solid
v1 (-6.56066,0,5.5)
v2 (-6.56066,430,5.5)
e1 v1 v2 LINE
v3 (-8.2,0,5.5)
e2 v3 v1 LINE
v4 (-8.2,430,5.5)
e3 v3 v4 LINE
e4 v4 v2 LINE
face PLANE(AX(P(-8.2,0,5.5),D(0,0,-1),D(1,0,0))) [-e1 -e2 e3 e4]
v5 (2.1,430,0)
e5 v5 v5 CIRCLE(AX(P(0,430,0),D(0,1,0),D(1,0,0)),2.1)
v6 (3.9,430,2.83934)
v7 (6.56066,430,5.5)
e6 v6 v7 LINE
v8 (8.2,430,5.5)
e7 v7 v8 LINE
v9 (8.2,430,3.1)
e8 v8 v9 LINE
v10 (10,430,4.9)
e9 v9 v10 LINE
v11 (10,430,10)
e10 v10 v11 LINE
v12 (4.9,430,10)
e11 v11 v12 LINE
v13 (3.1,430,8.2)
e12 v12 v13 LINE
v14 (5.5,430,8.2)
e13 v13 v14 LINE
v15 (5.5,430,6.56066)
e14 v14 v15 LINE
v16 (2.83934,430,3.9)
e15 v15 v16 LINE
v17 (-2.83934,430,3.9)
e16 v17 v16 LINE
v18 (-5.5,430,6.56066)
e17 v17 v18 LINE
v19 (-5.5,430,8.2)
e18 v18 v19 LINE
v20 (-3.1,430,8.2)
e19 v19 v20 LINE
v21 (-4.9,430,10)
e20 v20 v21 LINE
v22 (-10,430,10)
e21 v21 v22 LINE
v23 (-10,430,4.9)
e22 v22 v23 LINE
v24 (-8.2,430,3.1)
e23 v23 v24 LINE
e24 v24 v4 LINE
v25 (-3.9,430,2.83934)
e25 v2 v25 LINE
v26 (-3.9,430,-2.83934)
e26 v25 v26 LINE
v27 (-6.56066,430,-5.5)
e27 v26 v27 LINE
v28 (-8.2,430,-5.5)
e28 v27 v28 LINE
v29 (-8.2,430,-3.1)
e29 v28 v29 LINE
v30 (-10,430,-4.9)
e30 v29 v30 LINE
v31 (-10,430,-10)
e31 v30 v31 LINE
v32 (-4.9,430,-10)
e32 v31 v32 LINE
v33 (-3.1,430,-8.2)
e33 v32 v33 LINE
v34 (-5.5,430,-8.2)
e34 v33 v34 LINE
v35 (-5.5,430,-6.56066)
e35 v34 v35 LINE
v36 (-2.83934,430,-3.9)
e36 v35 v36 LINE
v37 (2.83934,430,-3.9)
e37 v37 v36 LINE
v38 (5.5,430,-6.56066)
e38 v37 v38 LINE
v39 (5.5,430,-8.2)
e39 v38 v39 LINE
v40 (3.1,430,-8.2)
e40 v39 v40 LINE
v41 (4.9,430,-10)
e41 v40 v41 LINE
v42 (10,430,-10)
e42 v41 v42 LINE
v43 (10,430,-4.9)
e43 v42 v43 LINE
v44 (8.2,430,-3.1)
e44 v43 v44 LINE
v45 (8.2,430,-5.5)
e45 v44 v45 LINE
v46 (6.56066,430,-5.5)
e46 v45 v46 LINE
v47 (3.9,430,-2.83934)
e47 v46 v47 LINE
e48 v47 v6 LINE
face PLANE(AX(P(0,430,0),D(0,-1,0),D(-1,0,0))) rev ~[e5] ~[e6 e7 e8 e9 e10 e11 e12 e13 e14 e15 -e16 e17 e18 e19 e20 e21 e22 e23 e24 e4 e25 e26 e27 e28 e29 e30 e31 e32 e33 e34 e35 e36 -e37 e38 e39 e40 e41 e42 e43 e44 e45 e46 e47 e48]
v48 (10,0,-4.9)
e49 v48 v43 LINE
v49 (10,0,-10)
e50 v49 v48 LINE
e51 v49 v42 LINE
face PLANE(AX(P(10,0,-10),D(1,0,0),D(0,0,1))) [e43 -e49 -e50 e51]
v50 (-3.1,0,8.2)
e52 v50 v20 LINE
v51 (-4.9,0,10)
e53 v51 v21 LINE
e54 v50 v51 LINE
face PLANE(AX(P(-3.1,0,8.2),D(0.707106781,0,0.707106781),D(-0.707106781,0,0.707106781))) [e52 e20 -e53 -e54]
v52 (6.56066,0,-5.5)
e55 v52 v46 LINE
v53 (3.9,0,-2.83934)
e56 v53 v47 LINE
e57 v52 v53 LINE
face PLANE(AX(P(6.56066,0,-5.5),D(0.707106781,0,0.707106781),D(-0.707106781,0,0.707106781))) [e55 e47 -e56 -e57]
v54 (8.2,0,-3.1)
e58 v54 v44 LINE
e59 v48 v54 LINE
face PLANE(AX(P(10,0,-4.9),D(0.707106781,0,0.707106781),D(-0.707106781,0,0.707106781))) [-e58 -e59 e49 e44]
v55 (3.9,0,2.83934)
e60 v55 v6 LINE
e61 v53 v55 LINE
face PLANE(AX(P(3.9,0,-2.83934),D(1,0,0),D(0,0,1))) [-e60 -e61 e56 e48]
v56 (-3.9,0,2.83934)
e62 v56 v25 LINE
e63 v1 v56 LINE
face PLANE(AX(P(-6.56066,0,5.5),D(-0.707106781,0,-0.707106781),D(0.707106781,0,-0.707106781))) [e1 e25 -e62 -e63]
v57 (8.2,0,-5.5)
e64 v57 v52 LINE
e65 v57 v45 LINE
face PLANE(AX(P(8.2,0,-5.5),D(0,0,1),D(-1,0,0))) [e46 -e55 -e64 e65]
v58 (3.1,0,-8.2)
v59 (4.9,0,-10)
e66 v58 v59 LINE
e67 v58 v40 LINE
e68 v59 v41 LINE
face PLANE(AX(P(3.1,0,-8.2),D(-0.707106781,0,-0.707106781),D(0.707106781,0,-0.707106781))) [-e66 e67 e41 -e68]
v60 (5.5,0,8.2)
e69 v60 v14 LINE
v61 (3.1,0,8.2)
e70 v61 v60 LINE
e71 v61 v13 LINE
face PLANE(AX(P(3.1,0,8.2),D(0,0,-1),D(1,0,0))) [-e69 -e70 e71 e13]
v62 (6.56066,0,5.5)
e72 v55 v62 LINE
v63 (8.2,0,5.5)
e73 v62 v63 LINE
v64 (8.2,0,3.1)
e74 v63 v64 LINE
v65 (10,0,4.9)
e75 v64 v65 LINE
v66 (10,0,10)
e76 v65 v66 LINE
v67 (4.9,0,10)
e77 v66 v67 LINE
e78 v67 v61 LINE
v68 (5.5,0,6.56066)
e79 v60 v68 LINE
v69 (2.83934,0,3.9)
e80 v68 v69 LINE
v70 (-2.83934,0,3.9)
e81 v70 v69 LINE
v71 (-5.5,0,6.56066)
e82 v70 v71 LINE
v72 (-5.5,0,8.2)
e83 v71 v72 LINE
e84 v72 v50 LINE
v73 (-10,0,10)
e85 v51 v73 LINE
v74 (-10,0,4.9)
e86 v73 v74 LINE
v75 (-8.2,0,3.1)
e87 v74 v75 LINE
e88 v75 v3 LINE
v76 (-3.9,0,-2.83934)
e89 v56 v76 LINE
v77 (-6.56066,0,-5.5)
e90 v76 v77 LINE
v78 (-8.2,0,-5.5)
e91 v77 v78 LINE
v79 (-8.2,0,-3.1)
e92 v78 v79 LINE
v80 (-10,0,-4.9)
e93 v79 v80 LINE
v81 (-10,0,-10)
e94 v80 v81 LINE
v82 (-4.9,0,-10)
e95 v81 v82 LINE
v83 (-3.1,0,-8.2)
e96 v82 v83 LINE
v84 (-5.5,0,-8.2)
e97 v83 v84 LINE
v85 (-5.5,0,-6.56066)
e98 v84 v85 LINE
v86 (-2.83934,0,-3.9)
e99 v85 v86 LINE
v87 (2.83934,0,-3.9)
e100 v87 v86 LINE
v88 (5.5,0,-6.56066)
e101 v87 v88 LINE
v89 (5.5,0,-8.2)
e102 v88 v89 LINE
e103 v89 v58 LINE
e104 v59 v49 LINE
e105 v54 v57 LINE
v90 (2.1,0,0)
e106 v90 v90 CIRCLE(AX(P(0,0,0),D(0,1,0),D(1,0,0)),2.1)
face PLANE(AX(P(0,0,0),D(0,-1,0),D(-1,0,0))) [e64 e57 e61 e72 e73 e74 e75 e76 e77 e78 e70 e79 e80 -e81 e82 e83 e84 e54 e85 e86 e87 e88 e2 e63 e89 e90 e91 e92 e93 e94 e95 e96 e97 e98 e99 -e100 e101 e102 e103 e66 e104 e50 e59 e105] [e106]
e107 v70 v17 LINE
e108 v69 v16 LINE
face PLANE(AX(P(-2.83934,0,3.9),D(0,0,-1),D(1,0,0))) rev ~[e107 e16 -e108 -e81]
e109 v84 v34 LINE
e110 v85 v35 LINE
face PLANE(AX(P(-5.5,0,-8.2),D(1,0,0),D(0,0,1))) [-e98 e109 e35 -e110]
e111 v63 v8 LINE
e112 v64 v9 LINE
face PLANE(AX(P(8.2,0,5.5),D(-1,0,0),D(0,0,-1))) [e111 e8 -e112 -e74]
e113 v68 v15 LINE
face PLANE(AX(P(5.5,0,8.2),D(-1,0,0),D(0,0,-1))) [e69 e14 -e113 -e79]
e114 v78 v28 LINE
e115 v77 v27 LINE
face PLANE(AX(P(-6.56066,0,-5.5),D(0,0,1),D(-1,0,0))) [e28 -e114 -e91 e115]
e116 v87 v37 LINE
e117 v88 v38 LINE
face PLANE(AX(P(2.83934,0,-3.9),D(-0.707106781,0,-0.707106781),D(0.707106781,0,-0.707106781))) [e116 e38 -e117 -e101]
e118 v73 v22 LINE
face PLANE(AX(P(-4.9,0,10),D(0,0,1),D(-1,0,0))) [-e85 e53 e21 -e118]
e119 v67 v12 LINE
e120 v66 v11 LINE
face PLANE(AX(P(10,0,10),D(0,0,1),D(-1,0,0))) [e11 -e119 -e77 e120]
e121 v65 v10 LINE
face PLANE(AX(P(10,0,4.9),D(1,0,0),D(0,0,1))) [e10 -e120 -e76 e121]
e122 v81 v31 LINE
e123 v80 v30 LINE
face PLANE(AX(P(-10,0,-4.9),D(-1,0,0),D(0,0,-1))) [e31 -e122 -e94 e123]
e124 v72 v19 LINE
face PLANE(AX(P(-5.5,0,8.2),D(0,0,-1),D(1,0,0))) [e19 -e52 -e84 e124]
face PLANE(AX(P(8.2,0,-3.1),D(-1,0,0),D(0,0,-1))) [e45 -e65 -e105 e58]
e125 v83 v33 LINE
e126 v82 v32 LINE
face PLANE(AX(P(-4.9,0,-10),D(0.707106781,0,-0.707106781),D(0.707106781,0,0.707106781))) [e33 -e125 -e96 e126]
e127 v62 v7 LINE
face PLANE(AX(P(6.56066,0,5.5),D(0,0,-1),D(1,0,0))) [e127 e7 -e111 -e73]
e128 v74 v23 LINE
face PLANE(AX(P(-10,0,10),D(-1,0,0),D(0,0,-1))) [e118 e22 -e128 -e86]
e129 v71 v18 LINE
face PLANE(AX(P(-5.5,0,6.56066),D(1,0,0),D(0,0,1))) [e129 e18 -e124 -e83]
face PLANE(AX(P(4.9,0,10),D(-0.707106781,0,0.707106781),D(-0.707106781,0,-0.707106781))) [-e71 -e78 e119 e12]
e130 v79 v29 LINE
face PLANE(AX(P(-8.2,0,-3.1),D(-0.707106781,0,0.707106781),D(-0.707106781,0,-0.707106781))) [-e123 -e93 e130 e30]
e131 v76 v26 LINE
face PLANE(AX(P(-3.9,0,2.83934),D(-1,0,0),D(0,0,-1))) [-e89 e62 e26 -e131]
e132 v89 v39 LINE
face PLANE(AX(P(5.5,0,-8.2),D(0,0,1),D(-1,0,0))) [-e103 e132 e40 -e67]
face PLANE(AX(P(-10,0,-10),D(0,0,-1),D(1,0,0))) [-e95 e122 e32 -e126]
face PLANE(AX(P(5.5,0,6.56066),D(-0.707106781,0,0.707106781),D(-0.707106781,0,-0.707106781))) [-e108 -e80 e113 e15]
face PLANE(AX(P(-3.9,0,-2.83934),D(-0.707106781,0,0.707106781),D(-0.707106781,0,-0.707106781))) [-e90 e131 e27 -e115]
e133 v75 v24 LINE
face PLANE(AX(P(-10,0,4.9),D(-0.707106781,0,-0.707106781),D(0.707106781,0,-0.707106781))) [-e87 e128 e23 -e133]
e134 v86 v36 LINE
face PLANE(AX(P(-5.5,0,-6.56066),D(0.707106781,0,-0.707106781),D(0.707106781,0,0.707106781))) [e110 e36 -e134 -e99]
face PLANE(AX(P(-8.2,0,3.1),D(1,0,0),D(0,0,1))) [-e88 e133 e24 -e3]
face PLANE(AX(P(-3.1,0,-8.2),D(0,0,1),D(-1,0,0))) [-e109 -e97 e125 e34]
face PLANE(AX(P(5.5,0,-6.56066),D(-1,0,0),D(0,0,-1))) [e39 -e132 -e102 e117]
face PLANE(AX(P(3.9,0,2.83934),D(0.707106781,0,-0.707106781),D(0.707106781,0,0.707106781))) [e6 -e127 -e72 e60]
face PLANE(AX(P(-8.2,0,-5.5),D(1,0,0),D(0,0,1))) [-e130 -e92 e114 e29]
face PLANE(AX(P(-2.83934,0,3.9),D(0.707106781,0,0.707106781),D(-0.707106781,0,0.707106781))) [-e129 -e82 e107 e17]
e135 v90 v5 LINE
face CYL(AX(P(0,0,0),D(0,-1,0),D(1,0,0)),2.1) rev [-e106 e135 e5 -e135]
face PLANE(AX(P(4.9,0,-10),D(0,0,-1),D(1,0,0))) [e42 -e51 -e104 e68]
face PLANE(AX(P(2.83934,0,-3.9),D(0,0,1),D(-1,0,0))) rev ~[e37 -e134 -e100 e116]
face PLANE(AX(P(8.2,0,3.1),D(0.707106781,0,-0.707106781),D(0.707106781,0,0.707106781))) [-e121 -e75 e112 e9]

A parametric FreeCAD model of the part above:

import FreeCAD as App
import Part
import Sketcher
from FreeCAD import Vector
Q = App.Units.Quantity

doc = App.newDocument("Part")
body = doc.addObject("PartDesign::Body", "Body")

# Sketch on XZ plane
sketch1 = body.newObject("Sketcher::SketchObject", "Sketch")
sketch1.AttachmentSupport = (doc.getObject("XZ_Plane"), [""])
sketch1.MapMode = "FlatFace"
sketch1.addGeometry(Part.LineSegment(Vector(-4.9, -10, 0), Vector(-10, -10, 0)), False)
sketch1.addGeometry(Part.LineSegment(Vector(-10, -10, 0), Vector(-10, -4.9, 0)), False)
sketch1.addGeometry(Part.LineSegment(Vector(-10, -4.9, 0), Vector(-8.2, -3.1, 0)), False)
sketch1.addGeometry(Part.LineSegment(Vector(-8.2, -3.1, 0), Vector(-8.2, -5.5, 0)), False)
sketch1.addGeometry(Part.LineSegment(Vector(-8.2, -5.5, 0), Vector(-6.6, -5.5, 0)), False)
sketch1.addGeometry(Part.LineSegment(Vector(-6.6, -5.5, 0), Vector(-3.9, -2.8, 0)), False)
sketch1.addGeometry(Part.LineSegment(Vector(-3.9, -2.8, 0), Vector(-3.9, 2.8, 0)), False)
sketch1.addGeometry(Part.LineSegment(Vector(-3.9, 2.8, 0), Vector(-6.6, 5.5, 0)), False)
sketch1.addGeometry(Part.LineSegment(Vector(-6.6, 5.5, 0), Vector(-8.2, 5.5, 0)), False)
sketch1.addGeometry(Part.LineSegment(Vector(-8.2, 5.5, 0), Vector(-8.2, 3.1, 0)), False)
sketch1.addGeometry(Part.LineSegment(Vector(-8.2, 3.1, 0), Vector(-10, 4.9, 0)), False)
sketch1.addGeometry(Part.LineSegment(Vector(-10, 4.9, 0), Vector(-10, 10, 0)), False)
sketch1.addGeometry(Part.LineSegment(Vector(-10, 10, 0), Vector(-4.9, 10, 0)), False)
sketch1.addGeometry(Part.LineSegment(Vector(-4.9, 10, 0), Vector(-3.1, 8.2, 0)), False)
sketch1.addGeometry(Part.LineSegment(Vector(-3.1, 8.2, 0), Vector(-5.5, 8.2, 0)), False)
sketch1.addGeometry(Part.LineSegment(Vector(-5.5, 8.2, 0), Vector(-5.5, 6.6, 0)), False)
sketch1.addGeometry(Part.LineSegment(Vector(-5.5, 6.6, 0), Vector(-2.8, 3.9, 0)), False)
sketch1.addGeometry(Part.LineSegment(Vector(-2.8, 3.9, 0), Vector(2.8, 3.9, 0)), False)
sketch1.addGeometry(Part.LineSegment(Vector(2.8, 3.9, 0), Vector(5.5, 6.6, 0)), False)
sketch1.addGeometry(Part.LineSegment(Vector(5.5, 6.6, 0), Vector(5.5, 8.2, 0)), False)
sketch1.addGeometry(Part.LineSegment(Vector(5.5, 8.2, 0), Vector(3.1, 8.2, 0)), False)
sketch1.addGeometry(Part.LineSegment(Vector(3.1, 8.2, 0), Vector(4.9, 10, 0)), False)
sketch1.addGeometry(Part.LineSegment(Vector(4.9, 10, 0), Vector(10, 10, 0)), False)
sketch1.addGeometry(Part.LineSegment(Vector(10, 10, 0), Vector(10, 4.9, 0)), False)
sketch1.addGeometry(Part.LineSegment(Vector(10, 4.9, 0), Vector(8.2, 3.1, 0)), False)
sketch1.addGeometry(Part.LineSegment(Vector(8.2, 3.1, 0), Vector(8.2, 5.5, 0)), False)
sketch1.addGeometry(Part.LineSegment(Vector(8.2, 5.5, 0), Vector(6.6, 5.5, 0)), False)
sketch1.addGeometry(Part.LineSegment(Vector(6.6, 5.5, 0), Vector(3.9, 2.8, 0)), False)
sketch1.addGeometry(Part.LineSegment(Vector(3.9, 2.8, 0), Vector(3.9, -2.8, 0)), False)
sketch1.addGeometry(Part.LineSegment(Vector(3.9, -2.8, 0), Vector(6.6, -5.5, 0)), False)
sketch1.addGeometry(Part.LineSegment(Vector(6.6, -5.5, 0), Vector(8.2, -5.5, 0)), False)
sketch1.addGeometry(Part.LineSegment(Vector(8.2, -5.5, 0), Vector(8.2, -3.1, 0)), False)
sketch1.addGeometry(Part.LineSegment(Vector(8.2, -3.1, 0), Vector(10, -4.9, 0)), False)
sketch1.addGeometry(Part.LineSegment(Vector(10, -4.9, 0), Vector(10, -10, 0)), False)
sketch1.addGeometry(Part.LineSegment(Vector(10, -10, 0), Vector(4.9, -10, 0)), False)
sketch1.addGeometry(Part.LineSegment(Vector(4.9, -10, 0), Vector(3.1, -8.2, 0)), False)
sketch1.addGeometry(Part.LineSegment(Vector(3.1, -8.2, 0), Vector(5.5, -8.2, 0)), False)
sketch1.addGeometry(Part.LineSegment(Vector(5.5, -8.2, 0), Vector(5.5, -6.6, 0)), False)
sketch1.addGeometry(Part.LineSegment(Vector(5.5, -6.6, 0), Vector(2.8, -3.9, 0)), False)
sketch1.addGeometry(Part.LineSegment(Vector(2.8, -3.9, 0), Vector(-2.8, -3.9, 0)), False)
sketch1.addGeometry(Part.LineSegment(Vector(-2.8, -3.9, 0), Vector(-5.5, -6.6, 0)), False)
sketch1.addGeometry(Part.LineSegment(Vector(-5.5, -6.6, 0), Vector(-5.5, -8.2, 0)), False)
sketch1.addGeometry(Part.LineSegment(Vector(-5.5, -8.2, 0), Vector(-3.1, -8.2, 0)), False)
sketch1.addGeometry(Part.LineSegment(Vector(-3.1, -8.2, 0), Vector(-4.9, -10, 0)), False)
sketch1.addGeometry(Part.Circle(Vector(0, 0, 0), Vector(0, 0, 1), 2.1), False)
sketch1.addConstraint(Sketcher.Constraint("Coincident", 0, 2, 1, 1))
sketch1.addConstraint(Sketcher.Constraint("Coincident", 1, 2, 2, 1))
sketch1.addConstraint(Sketcher.Constraint("Coincident", 2, 2, 3, 1))
sketch1.addConstraint(Sketcher.Constraint("Coincident", 3, 2, 4, 1))
sketch1.addConstraint(Sketcher.Constraint("Coincident", 4, 2, 5, 1))
sketch1.addConstraint(Sketcher.Constraint("Coincident", 5, 2, 6, 1))
sketch1.addConstraint(Sketcher.Constraint("Coincident", 6, 2, 7, 1))
sketch1.addConstraint(Sketcher.Constraint("Coincident", 7, 2, 8, 1))
sketch1.addConstraint(Sketcher.Constraint("Coincident", 8, 2, 9, 1))
sketch1.addConstraint(Sketcher.Constraint("Coincident", 9, 2, 10, 1))
sketch1.addConstraint(Sketcher.Constraint("Coincident", 10, 2, 11, 1))
sketch1.addConstraint(Sketcher.Constraint("Coincident", 11, 2, 12, 1))
sketch1.addConstraint(Sketcher.Constraint("Coincident", 12, 2, 13, 1))
sketch1.addConstraint(Sketcher.Constraint("Coincident", 13, 2, 14, 1))
sketch1.addConstraint(Sketcher.Constraint("Coincident", 14, 2, 15, 1))
sketch1.addConstraint(Sketcher.Constraint("Coincident", 15, 2, 16, 1))
sketch1.addConstraint(Sketcher.Constraint("Coincident", 16, 2, 17, 1))
sketch1.addConstraint(Sketcher.Constraint("Coincident", 17, 2, 18, 1))
sketch1.addConstraint(Sketcher.Constraint("Coincident", 18, 2, 19, 1))
sketch1.addConstraint(Sketcher.Constraint("Coincident", 19, 2, 20, 1))
sketch1.addConstraint(Sketcher.Constraint("Coincident", 20, 2, 21, 1))
sketch1.addConstraint(Sketcher.Constraint("Coincident", 21, 2, 22, 1))
sketch1.addConstraint(Sketcher.Constraint("Coincident", 22, 2, 23, 1))
sketch1.addConstraint(Sketcher.Constraint("Coincident", 23, 2, 24, 1))
sketch1.addConstraint(Sketcher.Constraint("Coincident", 24, 2, 25, 1))
sketch1.addConstraint(Sketcher.Constraint("Coincident", 25, 2, 26, 1))
sketch1.addConstraint(Sketcher.Constraint("Coincident", 26, 2, 27, 1))
sketch1.addConstraint(Sketcher.Constraint("Coincident", 27, 2, 28, 1))
sketch1.addConstraint(Sketcher.Constraint("Coincident", 28, 2, 29, 1))
sketch1.addConstraint(Sketcher.Constraint("Coincident", 29, 2, 30, 1))
sketch1.addConstraint(Sketcher.Constraint("Coincident", 30, 2, 31, 1))
sketch1.addConstraint(Sketcher.Constraint("Coincident", 31, 2, 32, 1))
sketch1.addConstraint(Sketcher.Constraint("Coincident", 32, 2, 33, 1))
sketch1.addConstraint(Sketcher.Constraint("Coincident", 33, 2, 34, 1))
sketch1.addConstraint(Sketcher.Constraint("Coincident", 34, 2, 35, 1))
sketch1.addConstraint(Sketcher.Constraint("Coincident", 35, 2, 36, 1))
sketch1.addConstraint(Sketcher.Constraint("Coincident", 36, 2, 37, 1))
sketch1.addConstraint(Sketcher.Constraint("Coincident", 37, 2, 38, 1))
sketch1.addConstraint(Sketcher.Constraint("Coincident", 38, 2, 39, 1))
sketch1.addConstraint(Sketcher.Constraint("Coincident", 39, 2, 40, 1))
sketch1.addConstraint(Sketcher.Constraint("Coincident", 40, 2, 41, 1))
sketch1.addConstraint(Sketcher.Constraint("Coincident", 41, 2, 42, 1))
sketch1.addConstraint(Sketcher.Constraint("Coincident", 42, 2, 43, 1))
sketch1.addConstraint(Sketcher.Constraint("Coincident", 43, 2, 0, 1))
sketch1.addConstraint(Sketcher.Constraint("Horizontal", 0))
sketch1.addConstraint(Sketcher.Constraint("Vertical", 1))
sketch1.addConstraint(Sketcher.Constraint("Vertical", 3))
sketch1.addConstraint(Sketcher.Constraint("Horizontal", 4))
sketch1.addConstraint(Sketcher.Constraint("Vertical", 6))
sketch1.addConstraint(Sketcher.Constraint("Horizontal", 8))
sketch1.addConstraint(Sketcher.Constraint("Vertical", 9))
sketch1.addConstraint(Sketcher.Constraint("Vertical", 11))
sketch1.addConstraint(Sketcher.Constraint("Horizontal", 12))
sketch1.addConstraint(Sketcher.Constraint("Horizontal", 14))
sketch1.addConstraint(Sketcher.Constraint("Vertical", 15))
sketch1.addConstraint(Sketcher.Constraint("Horizontal", 17))
sketch1.addConstraint(Sketcher.Constraint("Vertical", 19))
sketch1.addConstraint(Sketcher.Constraint("Horizontal", 20))
sketch1.addConstraint(Sketcher.Constraint("Horizontal", 22))
sketch1.addConstraint(Sketcher.Constraint("Vertical", 23))
sketch1.addConstraint(Sketcher.Constraint("Vertical", 25))
sketch1.addConstraint(Sketcher.Constraint("Horizontal", 26))
sketch1.addConstraint(Sketcher.Constraint("Vertical", 28))
sketch1.addConstraint(Sketcher.Constraint("Horizontal", 30))
sketch1.addConstraint(Sketcher.Constraint("Vertical", 31))
sketch1.addConstraint(Sketcher.Constraint("Vertical", 33))
sketch1.addConstraint(Sketcher.Constraint("Horizontal", 34))
sketch1.addConstraint(Sketcher.Constraint("Horizontal", 36))
sketch1.addConstraint(Sketcher.Constraint("Vertical", 37))
sketch1.addConstraint(Sketcher.Constraint("Horizontal", 39))
sketch1.addConstraint(Sketcher.Constraint("Vertical", 41))
sketch1.addConstraint(Sketcher.Constraint("Horizontal", 42))
sketch1.addConstraint(Sketcher.Constraint("Coincident", 44, 3, -1, 1))
sketch1.addConstraint(Sketcher.Constraint("Symmetric", 0, 2, 22, 2, -1, 1))
sketch1.addConstraint(Sketcher.Constraint("Symmetric", 2, 2, 24, 2, -1, 1))
sketch1.addConstraint(Sketcher.Constraint("Symmetric", 4, 2, 26, 2, -1, 1))
sketch1.addConstraint(Sketcher.Constraint("Symmetric", 5, 2, 27, 2, -1, 1))
sketch1.addConstraint(Sketcher.Constraint("Symmetric", 7, 2, 29, 2, -1, 1))
sketch1.addConstraint(Sketcher.Constraint("Symmetric", 9, 2, 31, 2, -1, 1))
sketch1.addConstraint(Sketcher.Constraint("Symmetric", 10, 2, 32, 2, -1, 1))
sketch1.addConstraint(Sketcher.Constraint("Symmetric", 12, 2, 34, 2, -1, 1))
sketch1.addConstraint(Sketcher.Constraint("Symmetric", 13, 2, 35, 2, -1, 1))
sketch1.addConstraint(Sketcher.Constraint("Symmetric", 15, 2, 37, 2, -1, 1))
sketch1.addConstraint(Sketcher.Constraint("Symmetric", 16, 2, 38, 2, -1, 1))
sketch1.addConstraint(Sketcher.Constraint("Symmetric", 18, 2, 40, 2, -1, 1))
sketch1.addConstraint(Sketcher.Constraint("Symmetric", 20, 2, 42, 2, -1, 1))
sketch1.addConstraint(Sketcher.Constraint("Symmetric", 15, 2, 18, 2, -2))
sketch1.addConstraint(Sketcher.Constraint("Symmetric", 13, 2, 20, 2, -2))
sketch1.addConstraint(Sketcher.Constraint("Symmetric", 12, 2, 21, 2, -2))
sketch1.addConstraint(Sketcher.Constraint("Symmetric", 10, 2, 23, 2, -2))
sketch1.addConstraint(Sketcher.Constraint("Symmetric", 9, 2, 24, 2, -2))
sketch1.addConstraint(Sketcher.Constraint("Symmetric", 7, 2, 26, 2, -2))
sketch1.addConstraint(Sketcher.Constraint("Parallel", 2, 5))
sketch1.addConstraint(Sketcher.Constraint("Perpendicular", 5, 7))
sketch1.addConstraint(Sketcher.Constraint("Parallel", 7, 10))
sketch1.addConstraint(Sketcher.Constraint("Parallel", 10, 13))
sketch1.addConstraint(Sketcher.Constraint("Parallel", 13, 16))
sketch1.addConstraint(Sketcher.Constraint("Perpendicular", 16, 18))
sketch1.addConstraint(Sketcher.Constraint("Parallel", 18, 21))
sketch1.addConstraint(Sketcher.Constraint("Perpendicular", 27, 29))
sketch1.addConstraint(Sketcher.Constraint("Perpendicular", 38, 40))
sketch1.addConstraint(Sketcher.Constraint("Parallel", 40, 43))
sketch1.addConstraint(Sketcher.Constraint("Equal", 34, 1))
sketch1.addConstraint(Sketcher.Constraint("Equal", 42, 3))
sketch1.addConstraint(Sketcher.Constraint("Equal", 39, 6))
sketch1.addConstraint(Sketcher.Constraint("Equal", 30, 15))
sketch1.addConstraint(Sketcher.Constraint("Equal", 10, 13))
sketch1.addConstraint(Sketcher.Constraint("Equal", 7, 16))
sketch1.addConstraint(Sketcher.Constraint("Diameter", 44, Q("4.2 mm")))
sketch1.addConstraint(Sketcher.Constraint("DistanceX", 0, 2, 0, 1, Q("5.1 mm")))
sketch1.addConstraint(Sketcher.Constraint("DistanceX", 14, 2, 14, 1, Q("2.4 mm")))
sketch1.addConstraint(Sketcher.Constraint("DistanceX", 0, 2, -1, 1, Q("10 mm")))
sketch1.addConstraint(Sketcher.Constraint("DistanceY", 2, 2, 10, 2, Q("8 mm")))
sketch1.addConstraint(Sketcher.Constraint("DistanceX", 12, 2, 6, 2, Q("1 mm")))
sketch1.addConstraint(Sketcher.Constraint("DistanceX", 4, 1, 4, 2, Q("1.63934 mm")))
pad1 = body.newObject("PartDesign::Pad", "Pad")
pad1.Profile = sketch1
pad1.Length = 430
pad1.Reversed = True

doc.recompute()
